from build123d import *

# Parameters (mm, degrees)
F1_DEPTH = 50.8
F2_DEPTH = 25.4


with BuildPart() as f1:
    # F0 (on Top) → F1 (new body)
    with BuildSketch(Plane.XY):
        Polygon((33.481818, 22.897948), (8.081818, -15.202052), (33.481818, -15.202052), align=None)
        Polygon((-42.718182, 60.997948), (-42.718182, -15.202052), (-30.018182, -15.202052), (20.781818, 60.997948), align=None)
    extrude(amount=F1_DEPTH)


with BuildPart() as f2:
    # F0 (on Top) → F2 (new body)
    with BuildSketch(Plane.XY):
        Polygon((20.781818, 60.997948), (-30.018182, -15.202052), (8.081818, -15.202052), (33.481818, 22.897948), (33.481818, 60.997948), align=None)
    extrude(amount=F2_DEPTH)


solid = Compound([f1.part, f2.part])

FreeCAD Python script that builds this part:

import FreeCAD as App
import Part
import Sketcher

V = App.Vector
Q = App.Units.Quantity

doc = App.newDocument("Part")
body = doc.addObject("PartDesign::Body", "Body")
body.AllowCompound = True

sketch1 = body.newObject("Sketcher::SketchObject", "Sketch")
sketch1.AttachmentSupport = (doc.getObject("XY_Plane"), [""])
sketch1.MapMode = "FlatFace"
sketch1.addGeometry([
    Part.LineSegment(V(33.481818, 22.897948, 0), V(8.081818, -15.202052, 0)),
    Part.LineSegment(V(8.081818, -15.202052, 0), V(33.481818, -15.202052, 0)),
    Part.LineSegment(V(33.481818, -15.202052, 0), V(33.481818, 22.897948, 0)),
    Part.LineSegment(V(-42.718182, 60.997948, 0), V(-42.718182, -15.202052, 0)),
    Part.LineSegment(V(-42.718182, -15.202052, 0), V(-30.018182, -15.202052, 0)),
    Part.LineSegment(V(-30.018182, -15.202052, 0), V(20.781818, 60.997948, 0)),
    Part.LineSegment(V(20.781818, 60.997948, 0), V(-42.718182, 60.997948, 0)),
], False)
sketch1.addConstraint([
    Sketcher.Constraint("Coincident", 0, 2, 1, 1),
    Sketcher.Constraint("Coincident", 1, 2, 2, 1),
    Sketcher.Constraint("Coincident", 2, 2, 0, 1),
    Sketcher.Constraint("Coincident", 3, 2, 4, 1),
    Sketcher.Constraint("Coincident", 4, 2, 5, 1),
    Sketcher.Constraint("Coincident", 5, 2, 6, 1),
    Sketcher.Constraint("Coincident", 6, 2, 3, 1),
    Sketcher.Constraint("Horizontal", 1),
    Sketcher.Constraint("Vertical", 2),
    Sketcher.Constraint("Vertical", 3),
    Sketcher.Constraint("Horizontal", 4),
    Sketcher.Constraint("Horizontal", 6),
    Sketcher.Constraint("Parallel", 0, 5),
    Sketcher.Constraint("Horizontal", 1, 2, 3, 2),
    Sketcher.Constraint("DistanceX", 1, 1, 1, 2, Q("1 in")),
    Sketcher.Constraint("DistanceY", 3, 2, 3, 1, Q("3 in")),
    Sketcher.Constraint("DistanceX", 4, 1, 4, 2, Q("0.5 in")),
    Sketcher.Constraint("DistanceX", 6, 2, 6, 1, Q("2.5 in")),
    Sketcher.Constraint("DistanceX", 3, 2, 0, 2, Q("2 in")),
    Sketcher.Constraint("DistanceX", 4, 2, -1, 1, 30.018182),
    Sketcher.Constraint("DistanceY", 0, 2, -1, 1, 15.202052),
])
pad1 = body.newObject("PartDesign::Pad", "Pad")
pad1.Profile = sketch1
pad1.Length = Q("2 in")
body2 = doc.addObject("PartDesign::Body", "Body001")

sketch2 = body2.newObject("Sketcher::SketchObject", "Sketch001")
sketch2.AttachmentSupport = (doc.getObject("XY_Plane001"), [""])
sketch2.MapMode = "FlatFace"
sketch2.addGeometry([
    Part.LineSegment(V(20.781818, 60.997948, 0), V(-30.018182, -15.202052, 0)),
    Part.LineSegment(V(-30.018182, -15.202052, 0), V(8.081818, -15.202052, 0)),
    Part.LineSegment(V(8.081818, -15.202052, 0), V(33.481818, 22.897948, 0)),
    Part.LineSegment(V(33.481818, 22.897948, 0), V(33.481818, 60.997948, 0)),
    Part.LineSegment(V(33.481818, 60.997948, 0), V(20.781818, 60.997948, 0)),
], False)
sketch2.addConstraint([
    Sketcher.Constraint("Coincident", 0, 2, 1, 1),
    Sketcher.Constraint("Coincident", 1, 2, 2, 1),
    Sketcher.Constraint("Coincident", 2, 2, 3, 1),
    Sketcher.Constraint("Coincident", 3, 2, 4, 1),
    Sketcher.Constraint("Coincident", 4, 2, 0, 1),
    Sketcher.Constraint("Horizontal", 1),
    Sketcher.Constraint("Vertical", 3),
    Sketcher.Constraint("Horizontal", 4),
    Sketcher.Constraint("Parallel", 0, 2),
    Sketcher.Constraint("Equal", 1, 3),
    Sketcher.Constraint("DistanceX", 1, 1, 1, 2, Q("1.5 in")),
    Sketcher.Constraint("DistanceX", 4, 2, 4, 1, Q("0.5 in")),
    Sketcher.Constraint("DistanceX", 1, 2, 2, 2, Q("1 in")),
    Sketcher.Constraint("DistanceX", 0, 2, -1, 1, 30.018182),
    Sketcher.Constraint("DistanceY", 0, 2, -1, 1, 15.202052),
])
pad2 = body2.newObject("PartDesign::Pad", "Pad001")
pad2.Profile = sketch2
pad2.Length = Q("1 in")

doc.recompute()
